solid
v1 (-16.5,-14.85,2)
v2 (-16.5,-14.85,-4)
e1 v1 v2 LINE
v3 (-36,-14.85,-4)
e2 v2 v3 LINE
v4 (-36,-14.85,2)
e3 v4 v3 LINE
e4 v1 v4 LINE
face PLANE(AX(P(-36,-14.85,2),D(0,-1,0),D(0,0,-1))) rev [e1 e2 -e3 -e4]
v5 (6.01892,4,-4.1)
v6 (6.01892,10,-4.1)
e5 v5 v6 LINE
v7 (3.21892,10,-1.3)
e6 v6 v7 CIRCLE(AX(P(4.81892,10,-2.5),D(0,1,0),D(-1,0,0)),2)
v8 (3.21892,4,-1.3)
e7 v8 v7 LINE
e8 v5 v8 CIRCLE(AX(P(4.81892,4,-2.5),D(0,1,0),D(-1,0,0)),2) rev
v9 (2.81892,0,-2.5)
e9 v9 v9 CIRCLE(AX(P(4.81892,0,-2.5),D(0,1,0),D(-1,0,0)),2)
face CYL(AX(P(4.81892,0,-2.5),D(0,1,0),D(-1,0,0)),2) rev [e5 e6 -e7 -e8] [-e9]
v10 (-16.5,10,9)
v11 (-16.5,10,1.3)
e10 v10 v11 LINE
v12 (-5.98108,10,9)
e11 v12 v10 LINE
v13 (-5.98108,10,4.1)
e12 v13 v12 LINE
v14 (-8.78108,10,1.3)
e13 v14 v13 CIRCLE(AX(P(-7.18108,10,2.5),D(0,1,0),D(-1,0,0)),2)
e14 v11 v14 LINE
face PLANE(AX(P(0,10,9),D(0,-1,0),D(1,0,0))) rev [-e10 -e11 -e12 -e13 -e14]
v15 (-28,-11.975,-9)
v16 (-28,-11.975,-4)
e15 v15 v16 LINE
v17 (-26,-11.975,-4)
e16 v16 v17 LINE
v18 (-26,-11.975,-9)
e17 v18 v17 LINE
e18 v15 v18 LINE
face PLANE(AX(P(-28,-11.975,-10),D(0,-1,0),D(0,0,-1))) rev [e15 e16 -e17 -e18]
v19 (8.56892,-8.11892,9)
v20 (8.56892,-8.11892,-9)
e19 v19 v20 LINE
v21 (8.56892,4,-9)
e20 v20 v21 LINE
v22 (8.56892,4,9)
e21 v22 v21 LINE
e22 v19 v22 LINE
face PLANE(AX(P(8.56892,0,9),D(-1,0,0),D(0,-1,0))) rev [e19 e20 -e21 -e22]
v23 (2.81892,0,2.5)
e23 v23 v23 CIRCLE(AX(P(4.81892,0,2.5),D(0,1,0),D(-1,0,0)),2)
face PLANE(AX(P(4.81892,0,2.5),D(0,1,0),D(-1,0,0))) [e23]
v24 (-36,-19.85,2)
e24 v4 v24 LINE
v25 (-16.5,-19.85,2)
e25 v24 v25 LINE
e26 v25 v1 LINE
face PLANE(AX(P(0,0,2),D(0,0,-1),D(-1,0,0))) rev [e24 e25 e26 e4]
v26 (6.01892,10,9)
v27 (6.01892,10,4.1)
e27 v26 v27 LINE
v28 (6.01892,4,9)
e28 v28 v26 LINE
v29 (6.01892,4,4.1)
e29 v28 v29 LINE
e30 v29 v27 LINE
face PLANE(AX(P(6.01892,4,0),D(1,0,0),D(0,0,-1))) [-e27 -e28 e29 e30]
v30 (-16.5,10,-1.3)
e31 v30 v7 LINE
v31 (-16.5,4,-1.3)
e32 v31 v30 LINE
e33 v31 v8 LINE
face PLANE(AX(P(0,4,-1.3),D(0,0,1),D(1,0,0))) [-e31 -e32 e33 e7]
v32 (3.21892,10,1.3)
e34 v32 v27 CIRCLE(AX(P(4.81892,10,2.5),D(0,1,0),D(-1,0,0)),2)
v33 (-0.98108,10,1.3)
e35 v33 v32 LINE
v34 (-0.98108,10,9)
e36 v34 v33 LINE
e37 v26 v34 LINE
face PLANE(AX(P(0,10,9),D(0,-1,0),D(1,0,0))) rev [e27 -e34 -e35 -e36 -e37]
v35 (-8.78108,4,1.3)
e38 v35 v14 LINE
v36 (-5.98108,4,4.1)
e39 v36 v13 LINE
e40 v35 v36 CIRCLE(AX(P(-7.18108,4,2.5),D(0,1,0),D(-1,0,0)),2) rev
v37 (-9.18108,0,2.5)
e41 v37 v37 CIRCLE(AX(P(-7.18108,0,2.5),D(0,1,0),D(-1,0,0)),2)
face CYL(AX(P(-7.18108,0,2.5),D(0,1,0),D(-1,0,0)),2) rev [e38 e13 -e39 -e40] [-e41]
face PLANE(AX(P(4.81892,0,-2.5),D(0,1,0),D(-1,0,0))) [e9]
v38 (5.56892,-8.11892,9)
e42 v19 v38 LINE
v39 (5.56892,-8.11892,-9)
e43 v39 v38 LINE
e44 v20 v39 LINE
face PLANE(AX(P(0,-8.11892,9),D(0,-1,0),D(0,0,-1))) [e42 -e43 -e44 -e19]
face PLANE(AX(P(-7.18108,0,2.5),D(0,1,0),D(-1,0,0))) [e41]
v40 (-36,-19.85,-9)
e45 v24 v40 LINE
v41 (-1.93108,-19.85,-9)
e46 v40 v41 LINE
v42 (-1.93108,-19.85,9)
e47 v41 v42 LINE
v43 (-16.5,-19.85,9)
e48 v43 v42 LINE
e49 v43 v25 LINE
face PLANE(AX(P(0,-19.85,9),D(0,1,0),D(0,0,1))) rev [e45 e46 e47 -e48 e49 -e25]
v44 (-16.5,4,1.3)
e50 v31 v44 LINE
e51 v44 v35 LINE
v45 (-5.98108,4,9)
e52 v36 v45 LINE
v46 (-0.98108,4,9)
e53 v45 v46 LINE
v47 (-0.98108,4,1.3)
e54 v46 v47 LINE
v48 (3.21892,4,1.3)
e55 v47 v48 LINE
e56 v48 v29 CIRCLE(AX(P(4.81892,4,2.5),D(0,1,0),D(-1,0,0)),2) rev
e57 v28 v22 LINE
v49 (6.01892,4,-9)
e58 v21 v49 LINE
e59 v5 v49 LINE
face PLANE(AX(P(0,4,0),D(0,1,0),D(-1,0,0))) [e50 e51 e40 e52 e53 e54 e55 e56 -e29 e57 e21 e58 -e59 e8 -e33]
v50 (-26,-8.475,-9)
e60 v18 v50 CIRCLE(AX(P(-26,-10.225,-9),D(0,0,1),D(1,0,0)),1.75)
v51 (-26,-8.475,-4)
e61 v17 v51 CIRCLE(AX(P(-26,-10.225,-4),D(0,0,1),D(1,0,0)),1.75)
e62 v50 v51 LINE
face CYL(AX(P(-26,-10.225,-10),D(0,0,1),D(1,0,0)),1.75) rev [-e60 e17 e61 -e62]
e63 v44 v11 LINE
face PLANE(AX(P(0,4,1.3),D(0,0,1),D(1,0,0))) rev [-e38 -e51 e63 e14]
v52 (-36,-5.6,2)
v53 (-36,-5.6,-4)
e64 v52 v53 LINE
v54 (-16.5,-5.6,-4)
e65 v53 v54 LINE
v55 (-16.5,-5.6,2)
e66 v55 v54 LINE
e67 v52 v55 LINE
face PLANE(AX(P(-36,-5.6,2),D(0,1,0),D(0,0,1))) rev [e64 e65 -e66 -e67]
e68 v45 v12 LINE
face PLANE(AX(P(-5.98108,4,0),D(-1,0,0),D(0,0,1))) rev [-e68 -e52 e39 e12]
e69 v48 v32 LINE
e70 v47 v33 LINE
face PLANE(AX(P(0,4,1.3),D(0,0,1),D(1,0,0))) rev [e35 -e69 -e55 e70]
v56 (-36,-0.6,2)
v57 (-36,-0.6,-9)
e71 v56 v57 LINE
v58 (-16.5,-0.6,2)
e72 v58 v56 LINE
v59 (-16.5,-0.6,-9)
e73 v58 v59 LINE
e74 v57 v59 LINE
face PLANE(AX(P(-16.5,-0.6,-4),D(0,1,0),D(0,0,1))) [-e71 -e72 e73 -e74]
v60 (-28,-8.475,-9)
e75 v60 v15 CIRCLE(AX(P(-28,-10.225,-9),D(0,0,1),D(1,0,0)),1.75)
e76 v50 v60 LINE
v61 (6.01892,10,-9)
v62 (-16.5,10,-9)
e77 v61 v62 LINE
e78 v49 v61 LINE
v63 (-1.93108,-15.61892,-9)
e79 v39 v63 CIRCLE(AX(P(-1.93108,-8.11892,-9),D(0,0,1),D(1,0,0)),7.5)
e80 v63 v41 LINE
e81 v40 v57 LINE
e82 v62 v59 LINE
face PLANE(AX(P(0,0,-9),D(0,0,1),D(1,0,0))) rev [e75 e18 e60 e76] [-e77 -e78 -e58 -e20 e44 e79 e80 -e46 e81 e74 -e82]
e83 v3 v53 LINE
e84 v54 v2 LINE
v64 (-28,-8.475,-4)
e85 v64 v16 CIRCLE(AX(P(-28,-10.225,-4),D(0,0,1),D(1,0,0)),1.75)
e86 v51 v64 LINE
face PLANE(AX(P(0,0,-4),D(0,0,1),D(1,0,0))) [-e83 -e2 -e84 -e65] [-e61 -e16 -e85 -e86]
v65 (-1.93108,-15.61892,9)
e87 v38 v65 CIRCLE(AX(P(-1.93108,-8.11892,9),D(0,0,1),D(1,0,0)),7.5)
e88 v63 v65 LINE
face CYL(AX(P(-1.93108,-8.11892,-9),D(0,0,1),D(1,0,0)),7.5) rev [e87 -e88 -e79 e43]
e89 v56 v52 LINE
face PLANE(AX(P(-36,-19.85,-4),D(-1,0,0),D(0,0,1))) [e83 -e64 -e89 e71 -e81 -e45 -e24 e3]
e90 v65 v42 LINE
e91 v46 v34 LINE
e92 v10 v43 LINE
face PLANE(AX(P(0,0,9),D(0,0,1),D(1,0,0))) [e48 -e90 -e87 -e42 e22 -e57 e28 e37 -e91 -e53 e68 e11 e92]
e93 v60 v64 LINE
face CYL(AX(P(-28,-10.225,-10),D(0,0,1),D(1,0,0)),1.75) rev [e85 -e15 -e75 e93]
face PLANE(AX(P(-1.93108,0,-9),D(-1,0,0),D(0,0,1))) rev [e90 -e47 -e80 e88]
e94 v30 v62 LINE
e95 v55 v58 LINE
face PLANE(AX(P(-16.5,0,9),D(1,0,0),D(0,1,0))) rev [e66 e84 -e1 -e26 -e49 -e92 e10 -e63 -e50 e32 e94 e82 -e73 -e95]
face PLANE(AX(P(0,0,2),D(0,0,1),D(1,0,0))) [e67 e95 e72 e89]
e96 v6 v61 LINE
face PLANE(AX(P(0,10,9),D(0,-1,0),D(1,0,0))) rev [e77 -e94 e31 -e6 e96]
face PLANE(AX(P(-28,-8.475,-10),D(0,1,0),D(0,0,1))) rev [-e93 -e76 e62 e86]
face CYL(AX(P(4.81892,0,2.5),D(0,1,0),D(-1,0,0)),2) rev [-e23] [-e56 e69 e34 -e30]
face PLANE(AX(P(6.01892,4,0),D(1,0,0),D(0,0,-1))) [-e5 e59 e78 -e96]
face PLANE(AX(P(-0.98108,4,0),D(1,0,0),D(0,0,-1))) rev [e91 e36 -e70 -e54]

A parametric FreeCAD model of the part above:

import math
import FreeCAD as App
import Part
import Sketcher

V = App.Vector

doc = App.newDocument("Part")
params = doc.addObject("Spreadsheet::Sheet", "Params")
for row, (alias, value) in enumerate([
    ("sketch1_width", "16.5 mm"),
    ("sketch1_height", "29.85 mm"),
    ("pad1_length", "18 mm"),
    ("sketch2_width", "19.5 mm"),
    ("sketch2_height", "19.25 mm"),
    ("pad2_length", "5 mm"),
    ("sketch3_height", "5 mm"),
    ("sketch3_width", "19.5 mm"),
    ("pad3_length", "6 mm"),
    ("sketch4_width", "2 mm"),
    ("sketch4_radius", "1.75 mm"),
    ("pocket1_length", "6 mm"),
    ("sketch5_diameter", "4 mm"),
    ("pocket2_length", "10 mm"),
    ("sketch6_width", "5 mm"),
    ("sketch6_width2", "7 mm"),
    ("sketch6_height", "18 mm"),
    ("sketch6_height2", "7.7 mm"),
    ("sketch6_width3", "2.55 mm"),
    ("pocket3_length", "6 mm"),
    ("sketch7_radius", "7.5 mm"),
    ("sketch7_width", "3 mm"),
    ("sketch7_width2", "10.5 mm"),
], start=1):
    params.set(f"A{row}", alias)
    params.set(f"B{row}", "=" + value)
    params.setAlias(f"B{row}", alias)

body = doc.addObject("PartDesign::Body", "Body")

sketch1 = body.newObject("Sketcher::SketchObject", "Sketch")
sketch1.AttachmentSupport = (doc.getObject("XY_Plane"), [""])
sketch1.MapMode = "FlatFace"
sketch1.addGeometry([
    Part.LineSegment(V(-16, -20, 0), V(0, -20, 0)),
    Part.LineSegment(V(0, -20, 0), V(0, -8, 0)),
    Part.LineSegment(V(0, -8, 0), V(9, -8, 0)),
    Part.LineSegment(V(9, -8, 0), V(9, 10, 0)),
    Part.LineSegment(V(9, 10, 0), V(-16, 10, 0)),
    Part.LineSegment(V(-16, 10, 0), V(-16, -20, 0)),
], False)
sketch1.addConstraint([
    Sketcher.Constraint("Coincident", 0, 2, 1, 1),
    Sketcher.Constraint("Coincident", 1, 2, 2, 1),
    Sketcher.Constraint("Coincident", 2, 2, 3, 1),
    Sketcher.Constraint("Coincident", 3, 2, 4, 1),
    Sketcher.Constraint("Coincident", 4, 2, 5, 1),
    Sketcher.Constraint("Coincident", 5, 2, 0, 1),
    Sketcher.Constraint("Horizontal", 0),
    Sketcher.Constraint("Vertical", 1),
    Sketcher.Constraint("Horizontal", 2),
    Sketcher.Constraint("Vertical", 3),
    Sketcher.Constraint("Horizontal", 4),
    Sketcher.Constraint("Vertical", 5),
    Sketcher.Constraint("PointOnObject", 0, 2, -2),
    Sketcher.Constraint("DistanceX", 0, 1, 0, 2, 16.5),
    Sketcher.Constraint("DistanceY", -1, 1, 3, 2, 10.0),
    Sketcher.Constraint("DistanceY", 5, 2, 5, 1, 29.85),
    Sketcher.Constraint("DistanceX", 2, 1, 2, 2, 8.56892),
    Sketcher.Constraint("DistanceY", 1, 1, 1, 2, 11.73108),
])
sketch1.setExpression("Constraints[13]", "Params.sketch1_width")
sketch1.setExpression("Constraints[15]", "Params.sketch1_height")
pad1 = body.newObject("PartDesign::Pad", "Pad")
pad1.Profile = sketch1
pad1.setExpression("Length", "Params.pad1_length")
pad1.Midplane = True

sketch2 = body.newObject("Sketcher::SketchObject", "Sketch001")
sketch2.AttachmentSupport = (doc.getObject("XY_Plane"), [""])
sketch2.MapMode = "FlatFace"
sketch2.AttachmentOffset = App.Placement(V(0, 0, -9), App.Rotation())
sketch2.addGeometry([
    Part.LineSegment(V(-16, -1, 0), V(-16, -20, 0)),
    Part.LineSegment(V(-16, -20, 0), V(-36, -20, 0)),
    Part.LineSegment(V(-36, -20, 0), V(-36, -1, 0)),
    Part.LineSegment(V(-36, -1, 0), V(-16, -1, 0)),
], False)
sketch2.addConstraint([
    Sketcher.Constraint("Coincident", 0, 2, 1, 1),
    Sketcher.Constraint("Coincident", 1, 2, 2, 1),
    Sketcher.Constraint("Coincident", 2, 2, 3, 1),
    Sketcher.Constraint("Coincident", 3, 2, 0, 1),
    Sketcher.Constraint("Vertical", 0),
    Sketcher.Constraint("Horizontal", 1),
    Sketcher.Constraint("Vertical", 2),
    Sketcher.Constraint("Horizontal", 3),
    Sketcher.Constraint("DistanceX", 1, 2, 1, 1, 19.5),
    Sketcher.Constraint("DistanceX", 1, 2, -1, 1, 36.0),
    Sketcher.Constraint("DistanceY", 0, 2, 0, 1, 19.25),
    Sketcher.Constraint("DistanceY", 2, 2, -1, 1, 0.6),
])
sketch2.setExpression("Constraints[8]", "Params.sketch2_width")
sketch2.setExpression("Constraints[10]", "Params.sketch2_height")
pad2 = body.newObject("PartDesign::Pad", "Pad001")
pad2.Profile = sketch2
pad2.setExpression("Length", "Params.pad2_length")

sketch3 = body.newObject("Sketcher::SketchObject", "Sketch002")
sketch3.AttachmentSupport = (doc.getObject("XY_Plane"), [""])
sketch3.MapMode = "FlatFace"
sketch3.AttachmentOffset = App.Placement(V(0, 0, -4), App.Rotation())
sketch3.addGeometry([
    Part.LineSegment(V(-36, -15, 0), V(-36, -20, 0)),
    Part.LineSegment(V(-36, -20, 0), V(-16, -20, 0)),
    Part.LineSegment(V(-16, -20, 0), V(-16, -15, 0)),
    Part.LineSegment(V(-16, -15, 0), V(-36, -15, 0)),
    Part.LineSegment(V(-36, -1, 0), V(-36, -6, 0)),
    Part.LineSegment(V(-36, -6, 0), V(-16, -6, 0)),
    Part.LineSegment(V(-16, -6, 0), V(-16, -1, 0)),
    Part.LineSegment(V(-16, -1, 0), V(-36, -1, 0)),
], False)
sketch3.addConstraint([
    Sketcher.Constraint("Coincident", 0, 2, 1, 1),
    Sketcher.Constraint("Coincident", 1, 2, 2, 1),
    Sketcher.Constraint("Coincident", 2, 2, 3, 1),
    Sketcher.Constraint("Coincident", 3, 2, 0, 1),
    Sketcher.Constraint("Coincident", 4, 2, 5, 1),
    Sketcher.Constraint("Coincident", 5, 2, 6, 1),
    Sketcher.Constraint("Coincident", 6, 2, 7, 1),
    Sketcher.Constraint("Coincident", 7, 2, 4, 1),
    Sketcher.Constraint("Vertical", 0),
    Sketcher.Constraint("Horizontal", 1),
    Sketcher.Constraint("Vertical", 2),
    Sketcher.Constraint("Horizontal", 3),
    Sketcher.Constraint("Vertical", 4),
    Sketcher.Constraint("Horizontal", 5),
    Sketcher.Constraint("Vertical", 6),
    Sketcher.Constraint("Horizontal", 7),
    Sketcher.Constraint("Vertical", 3, 2, 4, 2),
    Sketcher.Constraint("Vertical", 2, 2, 5, 2),
    Sketcher.Constraint("Equal", 2, 4),
    Sketcher.Constraint("DistanceY", 0, 2, 0, 1, 5.0),
    Sketcher.Constraint("DistanceX", 1, 1, 1, 2, 19.5),
    Sketcher.Constraint("DistanceX", 0, 2, -1, 1, 36.0),
    Sketcher.Constraint("DistanceY", 4, 2, -1, 1, 5.6),
    Sketcher.Constraint("DistanceY", 0, 2, -1, 1, 19.85),
])
sketch3.setExpression("Constraints[19]", "Params.sketch3_height")
sketch3.setExpression("Constraints[20]", "Params.sketch3_width")
pad3 = body.newObject("PartDesign::Pad", "Pad002")
pad3.Profile = sketch3
pad3.setExpression("Length", "Params.pad3_length")

sketch4 = body.newObject("Sketcher::SketchObject", "Sketch003")
sketch4.AttachmentSupport = (doc.getObject("XY_Plane"), [""])
sketch4.MapMode = "FlatFace"
sketch4.AttachmentOffset = App.Placement(V(0, 0, -4), App.Rotation())
sketch4.addGeometry([
    Part.LineSegment(V(-26, -8.5, 0), V(-28, -8.5, 0)),
    Part.ArcOfCircle(Part.Circle(V(-28, -10.2, 0), V(0, 0, 1), 1.8), math.radians(90), math.radians(270)),
    Part.LineSegment(V(-28, -12, 0), V(-26, -12, 0)),
    Part.ArcOfCircle(Part.Circle(V(-26, -10.2, 0), V(0, 0, 1), 1.8), math.radians(-90), math.radians(90)),
], False)
sketch4.addConstraint([
    Sketcher.Constraint("Tangent", 0, 2, 1, 1),
    Sketcher.Constraint("Tangent", 1, 2, 2, 1),
    Sketcher.Constraint("Tangent", 2, 2, 3, 1),
    Sketcher.Constraint("Tangent", 3, 2, 0, 1),
    Sketcher.Constraint("Horizontal", 0),
    Sketcher.Constraint("Horizontal", 2),
    Sketcher.Constraint("DistanceX", 0, 2, 0, 1, 2.0),
    Sketcher.Constraint("Radius", 1, 1.75),
    Sketcher.Constraint("DistanceX", 1, 3, -1, 1, 28.0),
    Sketcher.Constraint("DistanceY", 1, 3, -1, 1, 10.225),
])
sketch4.setExpression("Constraints[6]", "Params.sketch4_width")
sketch4.setExpression("Constraints[7]", "Params.sketch4_radius")
pocket1 = body.newObject("PartDesign::Pocket", "Pocket")
pocket1.Profile = sketch4
pocket1.setExpression("Length", "Params.pocket1_length")

sketch5 = body.newObject("Sketcher::SketchObject", "Sketch004")
sketch5.AttachmentSupport = (doc.getObject("XZ_Plane"), [""])
sketch5.MapMode = "FlatFace"
sketch5.AttachmentOffset = App.Placement(V(0, 0, -10), App.Rotation())
sketch5.addGeometry([
    Part.Circle(V(4.8, -2.5, 0), V(0, 0, 1), 2),
    Part.Circle(V(4.8, 2.5, 0), V(0, 0, 1), 2),
    Part.Circle(V(-7.2, 2.5, 0), V(0, 0, 1), 2),
], False)
sketch5.addConstraint([
    Sketcher.Constraint("Equal", 0, 1),
    Sketcher.Constraint("Equal", 1, 2),
    Sketcher.Constraint("Symmetric", 0, 3, 1, 3, -1),
    Sketcher.Constraint("Horizontal", 1, 3, 2, 3),
    Sketcher.Constraint("Diameter", 0, 4.0),
    Sketcher.Constraint("DistanceY", 0, 3, 1, 3, 5.0),
    Sketcher.Constraint("DistanceX", 2, 3, 1, 3, 12.0),
    Sketcher.Constraint("DistanceX", -1, 1, 0, 3, 4.81892),
])
sketch5.setExpression("Constraints[4]", "Params.sketch5_diameter")
pocket2 = body.newObject("PartDesign::Pocket", "Pocket001")
pocket2.Profile = sketch5
pocket2.setExpression("Length", "Params.pocket2_length")
pocket2.Reversed = True

sketch6 = body.newObject("Sketcher::SketchObject", "Sketch005")
sketch6.AttachmentSupport = (doc.getObject("XZ_Plane"), [""])
sketch6.MapMode = "FlatFace"
sketch6.AttachmentOffset = App.Placement(V(0, 0, -10), App.Rotation())
sketch6.addGeometry([
    Part.LineSegment(V(6, -9, 0), V(6, -1.3, 0)),
    Part.LineSegment(V(6, -1.3, 0), V(-16.5, -1.3, 0)),
    Part.LineSegment(V(-16.5, -1.3, 0), V(-16.5, 1.3, 0)),
    Part.LineSegment(V(-16.5, 1.3, 0), V(-6, 1.3, 0)),
    Part.LineSegment(V(-6, 1.3, 0), V(-6, 9, 0)),
    Part.LineSegment(V(-6, 9, 0), V(-1, 9, 0)),
    Part.LineSegment(V(-1, 9, 0), V(-1, 1.3, 0)),
    Part.LineSegment(V(-1, 1.3, 0), V(6, 1.3, 0)),
    Part.LineSegment(V(6, 1.3, 0), V(6, 9, 0)),
    Part.LineSegment(V(6, 9, 0), V(8.6, 9, 0)),
    Part.LineSegment(V(8.6, 9, 0), V(8.6, -9, 0)),
    Part.LineSegment(V(8.6, -9, 0), V(6, -9, 0)),
], False)
sketch6.addConstraint([
    Sketcher.Constraint("Coincident", 0, 2, 1, 1),
    Sketcher.Constraint("Coincident", 1, 2, 2, 1),
    Sketcher.Constraint("Coincident", 2, 2, 3, 1),
    Sketcher.Constraint("Coincident", 3, 2, 4, 1),
    Sketcher.Constraint("Coincident", 4, 2, 5, 1),
    Sketcher.Constraint("Coincident", 5, 2, 6, 1),
    Sketcher.Constraint("Coincident", 6, 2, 7, 1),
    Sketcher.Constraint("Coincident", 7, 2, 8, 1),
    Sketcher.Constraint("Coincident", 8, 2, 9, 1),
    Sketcher.Constraint("Coincident", 9, 2, 10, 1),
    Sketcher.Constraint("Coincident", 10, 2, 11, 1),
    Sketcher.Constraint("Coincident", 11, 2, 0, 1),
    Sketcher.Constraint("Vertical", 0),
    Sketcher.Constraint("Horizontal", 1),
    Sketcher.Constraint("Vertical", 2),
    Sketcher.Constraint("Horizontal", 3),
    Sketcher.Constraint("Vertical", 4),
    Sketcher.Constraint("Horizontal", 5),
    Sketcher.Constraint("Vertical", 6),
    Sketcher.Constraint("Horizontal", 7),
    Sketcher.Constraint("Vertical", 8),
    Sketcher.Constraint("Horizontal", 9),
    Sketcher.Constraint("Vertical", 10),
    Sketcher.Constraint("Horizontal", 11),
    Sketcher.Constraint("Symmetric", 0, 2, 7, 2, -1),
    Sketcher.Constraint("Horizontal", 3, 2, 6, 2),
    Sketcher.Constraint("Horizontal", 5, 2, 8, 2),
    Sketcher.Constraint("Equal", 0, 4),
    Sketcher.Constraint("DistanceX", 5, 1, 5, 2, 5.0),
    Sketcher.Constraint("DistanceX", 7, 1, 7, 2, 7.0),
    Sketcher.Constraint("DistanceY", 10, 2, 10, 1, 18.0),
    Sketcher.Constraint("DistanceY", 0, 1, 0, 2, 7.7),
    Sketcher.Constraint("DistanceX", 9, 1, 9, 2, 2.55),
    Sketcher.Constraint("DistanceX", 1, 2, -1, 1, 16.5),
    Sketcher.Constraint("DistanceX", 1, 2, 1, 1, 22.51892),
])
sketch6.setExpression("Constraints[28]", "Params.sketch6_width")
sketch6.setExpression("Constraints[29]", "Params.sketch6_width2")
sketch6.setExpression("Constraints[30]", "Params.sketch6_height")
sketch6.setExpression("Constraints[31]", "Params.sketch6_height2")
sketch6.setExpression("Constraints[32]", "Params.sketch6_width3")
pocket3 = body.newObject("PartDesign::Pocket", "Pocket002")
pocket3.Profile = sketch6
pocket3.setExpression("Length", "Params.pocket3_length")
pocket3.Reversed = True

sketch7 = body.newObject("Sketcher::SketchObject", "Sketch006")
sketch7.AttachmentSupport = (doc.getObject("XY_Plane"), [""])
sketch7.MapMode = "FlatFace"
sketch7.addGeometry([
    Part.ArcOfCircle(Part.Circle(V(-1.9, -8.1, 0), V(0, 0, 1), 7.5), math.radians(0), math.radians(270)),
    Part.LineSegment(V(-1.9, -15.6, 0), V(-1.9, -19.9, 0)),
    Part.LineSegment(V(-1.9, -19.9, 0), V(8.6, -19.9, 0)),
    Part.LineSegment(V(8.6, -19.9, 0), V(8.6, -8.1, 0)),
    Part.LineSegment(V(8.6, -8.1, 0), V(5.6, -8.1, 0)),
], False)
sketch7.addConstraint([
    Sketcher.Constraint("Coincident", 0, 2, 1, 1),
    Sketcher.Constraint("Coincident", 1, 2, 2, 1),
    Sketcher.Constraint("Coincident", 2, 2, 3, 1),
    Sketcher.Constraint("Coincident", 3, 2, 4, 1),
    Sketcher.Constraint("Coincident", 4, 2, 0, 1),
    Sketcher.Constraint("Vertical", 1),
    Sketcher.Constraint("Horizontal", 2),
    Sketcher.Constraint("Vertical", 3),
    Sketcher.Constraint("Horizontal", 4),
    Sketcher.Constraint("Horizontal", 0, 3, 3, 2),
    Sketcher.Constraint("Radius", 0, 7.5),
    Sketcher.Constraint("DistanceX", 4, 2, 4, 1, 3.0),
    Sketcher.Constraint("DistanceX", 2, 1, 2, 2, 10.5),
    Sketcher.Constraint("DistanceY", 1, 2, -1, 1, 19.85),
    Sketcher.Constraint("DistanceY", 1, 2, 1, 1, 4.23108),
    Sketcher.Constraint("DistanceX", 0, 3, -1, 1, 1.93108),
])
sketch7.setExpression("Constraints[10]", "Params.sketch7_radius")
sketch7.setExpression("Constraints[11]", "Params.sketch7_width")
sketch7.setExpression("Constraints[12]", "Params.sketch7_width2")
pocket4 = body.newObject("PartDesign::Pocket", "Pocket003")
pocket4.Profile = sketch7
pocket4.Type = "ThroughAll"
pocket4.Midplane = True

doc.recompute()
